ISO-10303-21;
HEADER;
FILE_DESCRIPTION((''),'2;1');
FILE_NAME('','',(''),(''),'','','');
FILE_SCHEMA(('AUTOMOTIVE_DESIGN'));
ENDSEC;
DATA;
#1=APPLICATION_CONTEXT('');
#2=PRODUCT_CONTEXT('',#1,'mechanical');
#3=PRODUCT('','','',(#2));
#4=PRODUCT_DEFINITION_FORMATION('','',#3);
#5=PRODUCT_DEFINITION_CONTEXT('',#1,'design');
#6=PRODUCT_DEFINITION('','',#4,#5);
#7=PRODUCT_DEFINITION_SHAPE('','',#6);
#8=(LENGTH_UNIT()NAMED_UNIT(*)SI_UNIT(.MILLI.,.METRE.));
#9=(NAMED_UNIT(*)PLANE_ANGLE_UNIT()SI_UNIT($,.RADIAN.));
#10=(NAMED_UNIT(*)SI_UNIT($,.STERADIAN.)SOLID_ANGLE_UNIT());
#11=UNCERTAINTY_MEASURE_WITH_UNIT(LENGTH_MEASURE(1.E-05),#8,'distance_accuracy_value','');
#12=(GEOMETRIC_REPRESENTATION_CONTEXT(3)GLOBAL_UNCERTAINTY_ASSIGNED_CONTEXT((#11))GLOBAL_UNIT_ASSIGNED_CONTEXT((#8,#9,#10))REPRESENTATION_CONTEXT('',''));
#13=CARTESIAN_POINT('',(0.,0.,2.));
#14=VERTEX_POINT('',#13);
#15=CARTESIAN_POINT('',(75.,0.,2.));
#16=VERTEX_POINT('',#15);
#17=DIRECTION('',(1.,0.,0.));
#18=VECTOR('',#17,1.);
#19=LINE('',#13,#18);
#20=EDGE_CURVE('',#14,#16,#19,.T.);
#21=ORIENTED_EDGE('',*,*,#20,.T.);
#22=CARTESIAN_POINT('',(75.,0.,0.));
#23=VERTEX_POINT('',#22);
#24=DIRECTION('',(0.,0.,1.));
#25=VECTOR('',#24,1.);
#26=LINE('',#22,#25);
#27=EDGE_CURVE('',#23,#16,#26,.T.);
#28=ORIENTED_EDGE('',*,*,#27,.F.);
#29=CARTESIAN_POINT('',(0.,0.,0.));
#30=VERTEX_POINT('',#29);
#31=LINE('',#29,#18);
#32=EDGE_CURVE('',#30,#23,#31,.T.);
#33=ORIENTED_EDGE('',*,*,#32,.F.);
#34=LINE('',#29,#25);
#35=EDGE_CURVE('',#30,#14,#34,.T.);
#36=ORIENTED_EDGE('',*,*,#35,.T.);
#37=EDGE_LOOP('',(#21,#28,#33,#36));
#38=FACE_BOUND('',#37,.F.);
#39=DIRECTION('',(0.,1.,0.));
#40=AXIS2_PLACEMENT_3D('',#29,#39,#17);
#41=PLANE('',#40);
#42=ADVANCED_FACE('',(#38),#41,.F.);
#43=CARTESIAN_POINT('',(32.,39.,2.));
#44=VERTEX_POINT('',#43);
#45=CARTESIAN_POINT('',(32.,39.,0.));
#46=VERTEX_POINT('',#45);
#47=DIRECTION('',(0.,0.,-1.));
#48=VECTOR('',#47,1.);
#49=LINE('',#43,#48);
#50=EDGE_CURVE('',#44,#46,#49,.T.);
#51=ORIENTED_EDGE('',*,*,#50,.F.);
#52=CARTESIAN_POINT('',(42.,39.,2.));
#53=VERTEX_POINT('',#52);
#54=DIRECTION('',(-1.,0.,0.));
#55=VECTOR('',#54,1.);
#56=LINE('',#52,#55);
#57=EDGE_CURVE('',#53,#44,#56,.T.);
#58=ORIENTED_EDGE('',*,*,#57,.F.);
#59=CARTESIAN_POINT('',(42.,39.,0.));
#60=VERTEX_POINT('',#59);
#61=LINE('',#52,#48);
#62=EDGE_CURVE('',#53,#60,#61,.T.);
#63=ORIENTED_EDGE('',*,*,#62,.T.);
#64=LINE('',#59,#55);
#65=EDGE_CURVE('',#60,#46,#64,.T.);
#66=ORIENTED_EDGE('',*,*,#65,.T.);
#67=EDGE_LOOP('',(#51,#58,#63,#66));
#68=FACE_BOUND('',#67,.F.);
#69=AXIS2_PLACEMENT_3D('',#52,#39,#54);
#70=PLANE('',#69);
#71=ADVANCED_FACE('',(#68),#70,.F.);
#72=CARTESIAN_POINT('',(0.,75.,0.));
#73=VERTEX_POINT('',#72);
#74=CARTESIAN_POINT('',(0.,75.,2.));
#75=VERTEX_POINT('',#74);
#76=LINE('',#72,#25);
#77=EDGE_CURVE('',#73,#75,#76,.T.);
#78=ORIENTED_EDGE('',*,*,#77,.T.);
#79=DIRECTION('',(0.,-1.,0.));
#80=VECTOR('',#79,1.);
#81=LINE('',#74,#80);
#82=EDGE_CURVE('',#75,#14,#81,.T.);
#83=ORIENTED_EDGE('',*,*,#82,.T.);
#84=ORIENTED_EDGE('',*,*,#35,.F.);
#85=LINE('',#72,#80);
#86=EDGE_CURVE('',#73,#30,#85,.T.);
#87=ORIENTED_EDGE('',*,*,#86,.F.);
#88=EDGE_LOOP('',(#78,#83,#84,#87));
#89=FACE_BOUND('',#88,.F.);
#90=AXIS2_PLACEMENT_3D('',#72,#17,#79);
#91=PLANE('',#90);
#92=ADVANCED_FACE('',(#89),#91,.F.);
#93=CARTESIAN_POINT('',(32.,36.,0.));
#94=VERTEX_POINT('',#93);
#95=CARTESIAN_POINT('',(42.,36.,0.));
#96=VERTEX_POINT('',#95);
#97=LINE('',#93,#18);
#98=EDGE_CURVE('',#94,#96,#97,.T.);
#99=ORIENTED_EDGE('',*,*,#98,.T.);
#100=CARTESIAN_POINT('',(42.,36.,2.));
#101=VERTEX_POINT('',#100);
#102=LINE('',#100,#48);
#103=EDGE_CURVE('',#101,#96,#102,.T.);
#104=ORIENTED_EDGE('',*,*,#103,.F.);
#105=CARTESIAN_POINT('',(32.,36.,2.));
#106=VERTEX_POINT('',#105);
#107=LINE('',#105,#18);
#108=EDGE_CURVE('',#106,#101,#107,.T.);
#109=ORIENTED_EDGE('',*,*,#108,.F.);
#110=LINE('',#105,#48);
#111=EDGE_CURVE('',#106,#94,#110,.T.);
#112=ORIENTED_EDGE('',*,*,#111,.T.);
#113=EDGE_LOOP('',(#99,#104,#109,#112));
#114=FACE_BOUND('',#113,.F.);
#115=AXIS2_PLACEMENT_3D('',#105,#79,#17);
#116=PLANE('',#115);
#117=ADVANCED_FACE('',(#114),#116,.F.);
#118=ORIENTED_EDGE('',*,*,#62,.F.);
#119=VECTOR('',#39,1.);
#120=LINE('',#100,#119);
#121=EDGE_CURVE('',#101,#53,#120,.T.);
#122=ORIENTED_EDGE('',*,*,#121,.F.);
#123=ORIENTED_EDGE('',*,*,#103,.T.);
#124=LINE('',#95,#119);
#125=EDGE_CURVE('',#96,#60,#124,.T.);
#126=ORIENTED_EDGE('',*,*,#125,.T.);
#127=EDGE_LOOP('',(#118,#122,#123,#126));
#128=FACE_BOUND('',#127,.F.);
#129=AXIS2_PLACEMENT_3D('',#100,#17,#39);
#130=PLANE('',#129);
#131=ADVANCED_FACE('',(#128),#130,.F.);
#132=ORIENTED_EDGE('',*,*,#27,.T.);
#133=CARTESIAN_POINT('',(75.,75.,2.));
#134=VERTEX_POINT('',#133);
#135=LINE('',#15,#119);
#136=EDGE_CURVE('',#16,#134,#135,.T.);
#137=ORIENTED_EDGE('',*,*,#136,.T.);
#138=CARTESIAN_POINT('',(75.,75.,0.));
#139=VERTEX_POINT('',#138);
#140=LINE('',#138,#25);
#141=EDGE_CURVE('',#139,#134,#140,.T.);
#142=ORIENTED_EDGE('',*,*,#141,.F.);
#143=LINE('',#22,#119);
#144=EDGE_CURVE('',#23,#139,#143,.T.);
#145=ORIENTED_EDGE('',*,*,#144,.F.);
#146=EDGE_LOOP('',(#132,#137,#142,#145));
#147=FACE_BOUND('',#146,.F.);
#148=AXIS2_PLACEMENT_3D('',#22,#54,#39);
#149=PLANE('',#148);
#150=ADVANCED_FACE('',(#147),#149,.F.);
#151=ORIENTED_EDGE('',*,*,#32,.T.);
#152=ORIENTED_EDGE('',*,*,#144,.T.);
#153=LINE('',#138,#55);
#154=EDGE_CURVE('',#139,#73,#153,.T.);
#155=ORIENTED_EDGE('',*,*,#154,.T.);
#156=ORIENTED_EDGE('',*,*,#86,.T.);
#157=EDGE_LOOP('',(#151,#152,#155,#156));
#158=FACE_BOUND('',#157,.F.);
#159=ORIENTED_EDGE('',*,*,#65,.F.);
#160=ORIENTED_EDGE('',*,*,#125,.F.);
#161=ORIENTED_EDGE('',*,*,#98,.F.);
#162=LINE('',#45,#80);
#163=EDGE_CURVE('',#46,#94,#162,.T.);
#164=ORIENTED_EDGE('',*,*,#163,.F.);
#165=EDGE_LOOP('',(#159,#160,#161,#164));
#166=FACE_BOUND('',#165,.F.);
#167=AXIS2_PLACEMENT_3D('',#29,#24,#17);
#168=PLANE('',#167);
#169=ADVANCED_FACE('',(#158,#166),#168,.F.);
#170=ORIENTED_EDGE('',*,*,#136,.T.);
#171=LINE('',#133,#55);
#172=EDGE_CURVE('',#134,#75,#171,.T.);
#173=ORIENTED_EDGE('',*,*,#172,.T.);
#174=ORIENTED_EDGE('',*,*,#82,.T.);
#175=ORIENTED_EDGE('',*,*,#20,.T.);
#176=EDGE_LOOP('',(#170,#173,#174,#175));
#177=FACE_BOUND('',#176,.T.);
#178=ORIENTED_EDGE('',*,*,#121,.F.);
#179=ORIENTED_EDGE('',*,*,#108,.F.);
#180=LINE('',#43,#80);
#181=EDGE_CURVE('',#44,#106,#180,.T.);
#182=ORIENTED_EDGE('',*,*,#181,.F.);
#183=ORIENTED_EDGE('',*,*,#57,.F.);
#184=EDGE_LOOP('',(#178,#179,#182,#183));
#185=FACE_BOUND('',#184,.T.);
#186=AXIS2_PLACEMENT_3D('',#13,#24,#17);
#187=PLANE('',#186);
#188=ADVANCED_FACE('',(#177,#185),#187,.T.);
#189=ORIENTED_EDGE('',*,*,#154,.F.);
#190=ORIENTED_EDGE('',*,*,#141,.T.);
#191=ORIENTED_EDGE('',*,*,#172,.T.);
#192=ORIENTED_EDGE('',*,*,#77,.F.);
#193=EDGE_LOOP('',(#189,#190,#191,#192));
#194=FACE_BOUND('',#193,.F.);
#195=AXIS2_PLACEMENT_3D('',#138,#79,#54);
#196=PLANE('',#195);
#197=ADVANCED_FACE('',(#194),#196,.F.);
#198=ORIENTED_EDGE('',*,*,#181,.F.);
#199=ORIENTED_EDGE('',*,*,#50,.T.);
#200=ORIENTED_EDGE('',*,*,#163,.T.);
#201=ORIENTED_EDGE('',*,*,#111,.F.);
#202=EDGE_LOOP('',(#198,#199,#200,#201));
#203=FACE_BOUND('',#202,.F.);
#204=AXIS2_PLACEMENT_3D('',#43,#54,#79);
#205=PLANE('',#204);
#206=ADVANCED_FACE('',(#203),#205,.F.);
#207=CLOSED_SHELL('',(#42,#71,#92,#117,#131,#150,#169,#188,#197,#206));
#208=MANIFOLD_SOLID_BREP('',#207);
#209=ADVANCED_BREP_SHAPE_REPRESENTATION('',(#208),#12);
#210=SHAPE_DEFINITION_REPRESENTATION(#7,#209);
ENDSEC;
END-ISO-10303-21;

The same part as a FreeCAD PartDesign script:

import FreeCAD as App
import Part
import Sketcher

doc = App.newDocument("Part")
body = doc.addObject("PartDesign::Body", "Body")

sketch1 = doc.addObject("Sketcher::SketchObject", "Sketch")
body.addObject(sketch1)
sketch1.AttachmentSupport = (doc.XY_Plane, [""])
sketch1.MapMode = "FlatFace"
sketch1.addGeometry([
    Part.LineSegment(App.Vector(0, 75, 0), App.Vector(0, 0, 0)),
    Part.LineSegment(App.Vector(0, 0, 0), App.Vector(75, 0, 0)),
    Part.LineSegment(App.Vector(75, 0, 0), App.Vector(75, 75, 0)),
    Part.LineSegment(App.Vector(75, 75, 0), App.Vector(0, 75, 0)),
], False)
sketch1.addConstraint([
    Sketcher.Constraint("Coincident", 0, 2, 1, 1),
    Sketcher.Constraint("Coincident", 1, 2, 2, 1),
    Sketcher.Constraint("Coincident", 2, 2, 3, 1),
    Sketcher.Constraint("Coincident", 3, 2, 0, 1),
    Sketcher.Constraint("Vertical", 0),
    Sketcher.Constraint("Horizontal", 1),
    Sketcher.Constraint("Vertical", 2),
    Sketcher.Constraint("Horizontal", 3),
    Sketcher.Constraint("Coincident", 0, 2, -1, 1),
    Sketcher.Constraint("Equal", 3, 0),
    Sketcher.Constraint("DistanceX", 1, 1, 1, 2, 75.0),
])
pad1 = doc.addObject("PartDesign::Pad", "Pad")
body.addObject(pad1)
pad1.Profile = sketch1
pad1.Length = 2

sketch2 = doc.addObject("Sketcher::SketchObject", "Sketch001")
body.addObject(sketch2)
sketch2.AttachmentSupport = (doc.XY_Plane, [""])
sketch2.MapMode = "FlatFace"
sketch2.AttachmentOffset = App.Placement(App.Vector(0, 0, 2), App.Rotation())
sketch2.addGeometry([
    Part.LineSegment(App.Vector(32, 39, 0), App.Vector(32, 36, 0)),
    Part.LineSegment(App.Vector(32, 36, 0), App.Vector(42, 36, 0)),
    Part.LineSegment(App.Vector(42, 36, 0), App.Vector(42, 39, 0)),
    Part.LineSegment(App.Vector(42, 39, 0), App.Vector(32, 39, 0)),
], False)
sketch2.addConstraint([
    Sketcher.Constraint("Coincident", 0, 2, 1, 1),
    Sketcher.Constraint("Coincident", 1, 2, 2, 1),
    Sketcher.Constraint("Coincident", 2, 2, 3, 1),
    Sketcher.Constraint("Coincident", 3, 2, 0, 1),
    Sketcher.Constraint("Vertical", 0),
    Sketcher.Constraint("Horizontal", 1),
    Sketcher.Constraint("Vertical", 2),
    Sketcher.Constraint("Horizontal", 3),
    Sketcher.Constraint("DistanceX", 1, 1, 1, 2, 10.0),
    Sketcher.Constraint("DistanceY", 0, 2, 0, 1, 3.0),
    Sketcher.Constraint("DistanceX", -1, 1, 0, 2, 32.0),
    Sketcher.Constraint("DistanceY", -1, 1, 0, 2, 36.0),
])
pocket1 = doc.addObject("PartDesign::Pocket", "Pocket")
body.addObject(pocket1)
pocket1.Profile = sketch2
pocket1.Length = 2

doc.recompute()
